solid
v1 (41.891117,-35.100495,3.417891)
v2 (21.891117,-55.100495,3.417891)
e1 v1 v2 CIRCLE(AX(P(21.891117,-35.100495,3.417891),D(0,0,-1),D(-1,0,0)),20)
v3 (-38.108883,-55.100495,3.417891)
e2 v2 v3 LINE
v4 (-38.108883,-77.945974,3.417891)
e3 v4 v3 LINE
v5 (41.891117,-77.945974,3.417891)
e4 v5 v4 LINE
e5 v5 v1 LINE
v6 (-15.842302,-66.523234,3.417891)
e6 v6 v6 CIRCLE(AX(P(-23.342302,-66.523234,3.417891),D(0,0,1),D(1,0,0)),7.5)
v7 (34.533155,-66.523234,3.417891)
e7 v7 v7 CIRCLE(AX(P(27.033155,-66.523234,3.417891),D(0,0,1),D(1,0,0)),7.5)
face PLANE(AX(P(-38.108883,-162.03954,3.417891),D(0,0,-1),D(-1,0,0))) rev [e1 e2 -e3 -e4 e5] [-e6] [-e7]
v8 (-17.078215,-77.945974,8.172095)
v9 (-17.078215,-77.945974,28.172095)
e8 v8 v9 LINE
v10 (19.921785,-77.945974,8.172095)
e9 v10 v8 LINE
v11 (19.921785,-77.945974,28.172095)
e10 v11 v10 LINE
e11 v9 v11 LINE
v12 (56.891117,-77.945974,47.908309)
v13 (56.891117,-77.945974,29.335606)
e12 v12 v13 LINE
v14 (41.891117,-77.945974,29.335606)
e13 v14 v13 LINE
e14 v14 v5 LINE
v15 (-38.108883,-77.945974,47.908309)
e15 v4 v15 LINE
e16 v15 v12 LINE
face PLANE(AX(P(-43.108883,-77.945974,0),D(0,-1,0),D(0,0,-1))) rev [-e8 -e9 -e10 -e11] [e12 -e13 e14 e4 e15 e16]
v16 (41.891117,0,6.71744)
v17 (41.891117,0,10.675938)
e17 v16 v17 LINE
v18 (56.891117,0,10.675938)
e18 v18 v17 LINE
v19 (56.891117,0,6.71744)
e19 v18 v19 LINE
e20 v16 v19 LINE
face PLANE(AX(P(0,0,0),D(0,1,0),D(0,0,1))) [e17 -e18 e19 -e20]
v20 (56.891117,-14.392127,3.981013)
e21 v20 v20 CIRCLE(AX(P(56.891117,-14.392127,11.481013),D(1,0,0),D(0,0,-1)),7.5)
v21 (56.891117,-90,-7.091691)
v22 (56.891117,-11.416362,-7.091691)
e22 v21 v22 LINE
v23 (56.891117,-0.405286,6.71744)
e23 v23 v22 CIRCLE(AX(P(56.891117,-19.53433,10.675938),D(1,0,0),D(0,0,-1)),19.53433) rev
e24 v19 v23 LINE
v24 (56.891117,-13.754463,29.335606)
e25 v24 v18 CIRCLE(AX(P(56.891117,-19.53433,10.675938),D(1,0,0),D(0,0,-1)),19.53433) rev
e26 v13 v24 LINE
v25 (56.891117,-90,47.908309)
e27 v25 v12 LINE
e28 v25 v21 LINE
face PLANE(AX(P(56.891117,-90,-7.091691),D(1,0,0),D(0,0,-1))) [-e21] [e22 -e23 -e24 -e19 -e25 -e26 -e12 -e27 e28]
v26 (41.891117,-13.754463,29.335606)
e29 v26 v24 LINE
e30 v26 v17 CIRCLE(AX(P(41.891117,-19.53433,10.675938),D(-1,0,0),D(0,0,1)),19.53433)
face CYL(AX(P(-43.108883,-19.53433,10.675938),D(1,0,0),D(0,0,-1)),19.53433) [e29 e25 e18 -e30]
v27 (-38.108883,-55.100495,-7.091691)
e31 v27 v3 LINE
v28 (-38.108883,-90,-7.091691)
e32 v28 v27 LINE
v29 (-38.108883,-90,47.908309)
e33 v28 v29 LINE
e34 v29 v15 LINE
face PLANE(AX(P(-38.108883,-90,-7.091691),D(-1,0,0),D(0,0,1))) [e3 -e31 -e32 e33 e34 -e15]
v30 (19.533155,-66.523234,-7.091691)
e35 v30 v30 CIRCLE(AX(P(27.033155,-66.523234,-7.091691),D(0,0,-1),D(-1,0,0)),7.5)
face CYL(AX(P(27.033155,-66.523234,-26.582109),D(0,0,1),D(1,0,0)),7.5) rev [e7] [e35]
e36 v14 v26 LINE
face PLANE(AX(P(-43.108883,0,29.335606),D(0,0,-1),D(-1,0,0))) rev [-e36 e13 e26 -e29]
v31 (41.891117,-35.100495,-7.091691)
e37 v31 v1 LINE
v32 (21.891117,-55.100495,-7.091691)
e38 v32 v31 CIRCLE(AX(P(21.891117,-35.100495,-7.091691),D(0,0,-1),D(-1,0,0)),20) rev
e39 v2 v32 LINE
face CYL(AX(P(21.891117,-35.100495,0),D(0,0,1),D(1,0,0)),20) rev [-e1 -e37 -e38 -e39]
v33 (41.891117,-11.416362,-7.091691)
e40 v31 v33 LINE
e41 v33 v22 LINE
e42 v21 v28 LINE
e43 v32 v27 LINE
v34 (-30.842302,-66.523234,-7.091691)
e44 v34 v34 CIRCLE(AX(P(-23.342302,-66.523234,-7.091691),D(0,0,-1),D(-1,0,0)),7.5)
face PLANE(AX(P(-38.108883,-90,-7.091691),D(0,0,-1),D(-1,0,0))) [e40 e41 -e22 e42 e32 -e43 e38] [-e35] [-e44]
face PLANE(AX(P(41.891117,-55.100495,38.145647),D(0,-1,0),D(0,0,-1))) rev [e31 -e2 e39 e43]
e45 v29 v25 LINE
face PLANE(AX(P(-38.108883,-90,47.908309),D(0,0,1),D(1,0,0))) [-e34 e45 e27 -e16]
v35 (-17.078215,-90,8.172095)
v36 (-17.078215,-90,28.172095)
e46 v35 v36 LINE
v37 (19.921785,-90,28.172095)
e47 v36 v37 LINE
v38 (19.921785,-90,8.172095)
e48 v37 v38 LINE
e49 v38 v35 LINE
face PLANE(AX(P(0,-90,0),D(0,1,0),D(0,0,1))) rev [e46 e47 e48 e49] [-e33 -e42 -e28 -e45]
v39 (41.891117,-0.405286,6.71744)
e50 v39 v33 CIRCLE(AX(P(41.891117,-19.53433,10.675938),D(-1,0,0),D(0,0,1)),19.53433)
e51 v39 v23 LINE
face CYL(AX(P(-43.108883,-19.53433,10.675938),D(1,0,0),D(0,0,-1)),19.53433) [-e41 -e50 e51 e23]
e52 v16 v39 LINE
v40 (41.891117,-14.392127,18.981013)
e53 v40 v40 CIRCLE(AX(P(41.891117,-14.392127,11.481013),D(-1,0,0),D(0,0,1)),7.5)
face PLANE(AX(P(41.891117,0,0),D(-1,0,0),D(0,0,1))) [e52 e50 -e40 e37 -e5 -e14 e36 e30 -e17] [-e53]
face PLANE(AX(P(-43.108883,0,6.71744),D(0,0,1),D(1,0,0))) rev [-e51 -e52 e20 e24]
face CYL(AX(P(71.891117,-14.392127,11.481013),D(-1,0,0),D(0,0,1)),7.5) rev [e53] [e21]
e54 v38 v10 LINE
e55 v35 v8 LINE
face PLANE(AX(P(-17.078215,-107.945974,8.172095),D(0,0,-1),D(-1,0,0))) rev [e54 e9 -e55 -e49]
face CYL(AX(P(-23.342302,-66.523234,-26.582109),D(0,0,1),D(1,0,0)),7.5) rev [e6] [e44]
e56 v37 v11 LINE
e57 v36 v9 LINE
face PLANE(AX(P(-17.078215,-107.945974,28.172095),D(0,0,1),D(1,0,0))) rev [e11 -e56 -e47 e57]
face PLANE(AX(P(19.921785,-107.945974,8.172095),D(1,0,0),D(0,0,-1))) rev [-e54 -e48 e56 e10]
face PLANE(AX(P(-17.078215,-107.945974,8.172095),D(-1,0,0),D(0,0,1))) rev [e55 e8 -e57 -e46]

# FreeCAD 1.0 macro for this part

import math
import FreeCAD as App
import Part
import Sketcher

V = App.Vector


def edges_at(feature, points):
    """Names of the edges that pass closest to the given points."""
    edges = feature.Shape.Edges
    near = lambda p: min(range(len(edges)), key=lambda i: edges[i].distToShape(Part.Vertex(*p))[0])
    return sorted({f"Edge{near(p) + 1}" for p in points})


def add_polygon(sketch, points):
    """Adds a closed chain of lines whose ends are joined by coincident constraints."""
    first, n = sketch.GeometryCount, len(points)
    for a, b in zip(points, points[1:] + points[:1]):
        sketch.addGeometry(Part.LineSegment(App.Vector(*a, 0), App.Vector(*b, 0)), False)
    for i in range(n):
        sketch.addConstraint(Sketcher.Constraint("Coincident", first + i, 2, first + (i + 1) % n, 1))

doc = App.newDocument("Part")
params = doc.addObject("Spreadsheet::Sheet", "Params")
for row, (alias, value) in enumerate([
    ("sketch1_width", "95 mm"),
    ("sketch1_height", "55 mm"),
    ("pad1_length", "90 mm"),
    ("pocket1_length", "100 mm"),
    ("pocket2_length", "80 mm"),
    ("sketch4_width", "80 mm"),
    ("pocket3_length", "22.845479 mm"),
    ("fillet_radius", "20 mm"),
    ("sketch5_diameter", "15 mm"),
    ("pocket4_length", "30 mm"),
    ("sketch6_width", "37 mm"),
    ("sketch6_height", "20 mm"),
    ("pocket5_length", "30 mm"),
    ("sketch7_diameter", "15 mm"),
    ("pocket6_length", "30 mm"),
], start=1):
    params.set(f"A{row}", alias)
    params.set(f"B{row}", "=" + value)
    params.setAlias(f"B{row}", alias)

body = doc.addObject("PartDesign::Body", "Body")

sketch1 = doc.addObject("Sketcher::SketchObject", "Sketch")
body.addObject(sketch1)
sketch1.AttachmentSupport = (doc.XZ_Plane, [""])
sketch1.MapMode = "FlatFace"
add_polygon(sketch1, [(-38, -7), (-38, 48), (57, 48), (57, -7)])
sketch1.addConstraint([
    Sketcher.Constraint("Vertical", 0),
    Sketcher.Constraint("Horizontal", 1),
    Sketcher.Constraint("Vertical", 2),
    Sketcher.Constraint("Horizontal", 3),
    Sketcher.Constraint("DistanceX", 1, 1, 1, 2, 95.0),
    Sketcher.Constraint("DistanceY", 0, 1, 0, 2, 55.0),
    Sketcher.Constraint("DistanceY", -1, 1, 0, 2, 47.908309),
    Sketcher.Constraint("DistanceX", 0, 2, -1, 1, 38.108883),
])
sketch1.setExpression("Constraints[8]", "Params.sketch1_width")
sketch1.setExpression("Constraints[9]", "Params.sketch1_height")
pad1 = doc.addObject("PartDesign::Pad", "Pad")
body.addObject(pad1)
pad1.Profile = sketch1
pad1.setExpression("Length", "Params.pad1_length")

sketch2 = doc.addObject("Sketcher::SketchObject", "Sketch001")
body.addObject(sketch2)
sketch2.AttachmentSupport = (doc.YZ_Plane, [""])
sketch2.MapMode = "FlatFace"
sketch2.AttachmentOffset = App.Placement(V(0, 0, 56.891117), App.Rotation())
sketch2.addGeometry([
    Part.ArcOfCircle(Part.Circle(V(-19.53, 10.68, 0), V(0, 0, 1), 19.53), math.radians(-65), math.radians(-12)),
    Part.LineSegment(V(-11.42, -7.09, 0), V(0, -7.09, 0)),
    Part.LineSegment(V(0, -7.09, 0), V(0, 6.72, 0)),
    Part.LineSegment(V(0, 6.72, 0), V(-0.41, 6.72, 0)),
    Part.LineSegment(V(-77.95, 47.91, 0), V(-77.95, 29.34, 0)),
    Part.LineSegment(V(-77.95, 29.34, 0), V(-13.75, 29.34, 0)),
    Part.ArcOfCircle(Part.Circle(V(-19.53, 10.68, 0), V(0, 0, 1), 19.53), math.radians(0), math.radians(73)),
    Part.LineSegment(V(0, 10.68, 0), V(0, 47.91, 0)),
    Part.LineSegment(V(0, 47.91, 0), V(-77.95, 47.91, 0)),
], False)
sketch2.addConstraint([
    Sketcher.Constraint("Coincident", 0, 1, 1, 1),
    Sketcher.Constraint("Coincident", 1, 2, 2, 1),
    Sketcher.Constraint("Coincident", 2, 2, 3, 1),
    Sketcher.Constraint("Coincident", 3, 2, 0, 2),
    Sketcher.Constraint("Coincident", 4, 2, 5, 1),
    Sketcher.Constraint("Coincident", 5, 2, 6, 2),
    Sketcher.Constraint("Tangent", 6, 1, 7, 1),
    Sketcher.Constraint("Coincident", 7, 2, 8, 1),
    Sketcher.Constraint("Coincident", 8, 2, 4, 1),
    Sketcher.Constraint("Horizontal", 1),
    Sketcher.Constraint("Vertical", 2),
    Sketcher.Constraint("Horizontal", 3),
    Sketcher.Constraint("Vertical", 4),
    Sketcher.Constraint("Horizontal", 5),
    Sketcher.Constraint("Vertical", 7),
    Sketcher.Constraint("Horizontal", 8),
    Sketcher.Constraint("Coincident", 6, 3, 0, 3),
    Sketcher.Constraint("Equal", 0, 6),
    Sketcher.Constraint("PointOnObject", 1, 2, -2),
    Sketcher.Constraint("PointOnObject", 6, 1, -2),
    Sketcher.Constraint("Radius", 0, 19.53433),
    Sketcher.Constraint("DistanceX", 5, 1, 5, 2, 64.19151),
    Sketcher.Constraint("DistanceY", 2, 1, 2, 2, 13.809131),
    Sketcher.Constraint("DistanceY", 7, 1, 7, 2, 37.232371),
    Sketcher.Constraint("DistanceY", 2, 2, 6, 3, 3.958498),
    Sketcher.Constraint("DistanceX", 5, 2, 0, 1, 2.338101),
    Sketcher.Constraint("DistanceY", -1, 1, 0, 3, 10.675938),
])
pocket1 = doc.addObject("PartDesign::Pocket", "Pocket")
body.addObject(pocket1)
pocket1.Profile = sketch2
pocket1.setExpression("Length", "Params.pocket1_length")

sketch3 = doc.addObject("Sketcher::SketchObject", "Sketch002")
body.addObject(sketch3)
sketch3.AttachmentSupport = (doc.YZ_Plane, [""])
sketch3.MapMode = "FlatFace"
sketch3.AttachmentOffset = App.Placement(V(0, 0, -38.108883), App.Rotation())
add_polygon(sketch3, [(19, -22), (-55, -22), (-55, 38), (19, 38)])
sketch3.addConstraint([
    Sketcher.Constraint("Horizontal", 0),
    Sketcher.Constraint("Vertical", 1),
    Sketcher.Constraint("Horizontal", 2),
    Sketcher.Constraint("Vertical", 3),
    Sketcher.Constraint("DistanceX", 0, 2, 0, 1, 73.853609),
    Sketcher.Constraint("DistanceY", 1, 1, 1, 2, 60.486878),
    Sketcher.Constraint("DistanceY", 0, 2, -1, 1, 22.341231),
    Sketcher.Constraint("DistanceX", 0, 2, -1, 1, 55.100495),
])
pocket2 = doc.addObject("PartDesign::Pocket", "Pocket001")
body.addObject(pocket2)
pocket2.Profile = sketch3
pocket2.setExpression("Length", "Params.pocket2_length")
pocket2.Reversed = True

sketch4 = doc.addObject("Sketcher::SketchObject", "Sketch003")
body.addObject(sketch4)
sketch4.AttachmentSupport = (doc.XZ_Plane, [""])
sketch4.MapMode = "FlatFace"
sketch4.AttachmentOffset = App.Placement(V(0, 0, 55.100495), App.Rotation())
add_polygon(sketch4, [(-38, 3), (-38, 29), (42, 29), (42, 3)])
sketch4.addConstraint([
    Sketcher.Constraint("Vertical", 0),
    Sketcher.Constraint("Horizontal", 1),
    Sketcher.Constraint("Vertical", 2),
    Sketcher.Constraint("Horizontal", 3),
    Sketcher.Constraint("DistanceX", 1, 1, 1, 2, 80.0),
    Sketcher.Constraint("DistanceY", 0, 1, 0, 2, 25.917714),
    Sketcher.Constraint("DistanceY", -1, 1, 2, 2, 3.417891),
    Sketcher.Constraint("DistanceX", 0, 2, -1, 1, 38.108883),
])
sketch4.setExpression("Constraints[8]", "Params.sketch4_width")
pocket3 = doc.addObject("PartDesign::Pocket", "Pocket002")
body.addObject(pocket3)
pocket3.Profile = sketch4
pocket3.setExpression("Length", "Params.pocket3_length")
pocket3.Reversed = True
doc.recompute()

fillet = doc.addObject("PartDesign::Fillet", "Fillet")
body.addObject(fillet)
fillet.Base = (pocket3, edges_at(pocket3, [(41.891, -55.1, -1.837)]))
fillet.setExpression("Radius", "Params.fillet_radius")

sketch5 = doc.addObject("Sketcher::SketchObject", "Sketch004")
body.addObject(sketch5)
sketch5.AttachmentSupport = (doc.XY_Plane, [""])
sketch5.MapMode = "FlatFace"
sketch5.AttachmentOffset = App.Placement(V(0, 0, 3.417891), App.Rotation())
sketch5.addGeometry([
    Part.Circle(V(-23, -67, 0), V(0, 0, 1), 8),
    Part.Circle(V(27, -67, 0), V(0, 0, 1), 8),
], False)
sketch5.addConstraint([
    Sketcher.Constraint("Equal", 0, 1),
    Sketcher.Constraint("Horizontal", 0, 3, 1, 3),
    Sketcher.Constraint("Diameter", 0, 15.0),
    Sketcher.Constraint("DistanceX", 0, 3, -1, 1, 23.342302),
    Sketcher.Constraint("DistanceY", 0, 3, -1, 1, 66.523234),
    Sketcher.Constraint("DistanceX", -1, 1, 1, 3, 27.033155),
])
sketch5.setExpression("Constraints[2]", "Params.sketch5_diameter")
pocket4 = doc.addObject("PartDesign::Pocket", "Pocket003")
body.addObject(pocket4)
pocket4.Profile = sketch5
pocket4.setExpression("Length", "Params.pocket4_length")

sketch6 = doc.addObject("Sketcher::SketchObject", "Sketch005")
body.addObject(sketch6)
sketch6.AttachmentSupport = (doc.XZ_Plane, [""])
sketch6.MapMode = "FlatFace"
sketch6.AttachmentOffset = App.Placement(V(0, 0, 77.945974), App.Rotation())
add_polygon(sketch6, [(-17, 8), (-17, 28), (20, 28), (20, 8)])
sketch6.addConstraint([
    Sketcher.Constraint("Vertical", 0),
    Sketcher.Constraint("Horizontal", 1),
    Sketcher.Constraint("Vertical", 2),
    Sketcher.Constraint("Horizontal", 3),
    Sketcher.Constraint("DistanceX", 1, 1, 1, 2, 37.0),
    Sketcher.Constraint("DistanceY", 0, 1, 0, 2, 20.0),
    Sketcher.Constraint("DistanceX", 0, 2, -1, 1, 17.078215),
    Sketcher.Constraint("DistanceY", -1, 1, 0, 2, 28.172095),
])
sketch6.setExpression("Constraints[8]", "Params.sketch6_width")
sketch6.setExpression("Constraints[9]", "Params.sketch6_height")
pocket5 = doc.addObject("PartDesign::Pocket", "Pocket004")
body.addObject(pocket5)
pocket5.Profile = sketch6
pocket5.setExpression("Length", "Params.pocket5_length")
pocket5.Reversed = True

sketch7 = doc.addObject("Sketcher::SketchObject", "Sketch006")
body.addObject(sketch7)
sketch7.AttachmentSupport = (doc.YZ_Plane, [""])
sketch7.MapMode = "FlatFace"
sketch7.AttachmentOffset = App.Placement(V(0, 0, 41.891117), App.Rotation())
sketch7.addGeometry(Part.Circle(V(-14, 11, 0), V(0, 0, 1), 8), False)
sketch7.addConstraint([
    Sketcher.Constraint("Diameter", 0, 15.0),
    Sketcher.Constraint("DistanceX", 0, 3, -1, 1, 14.392127),
    Sketcher.Constraint("DistanceY", -1, 1, 0, 3, 11.481013),
])
sketch7.setExpression("Constraints[0]", "Params.sketch7_diameter")
pocket6 = doc.addObject("PartDesign::Pocket", "Pocket005")
body.addObject(pocket6)
pocket6.Profile = sketch7
pocket6.setExpression("Length", "Params.pocket6_length")
pocket6.Reversed = True

doc.recompute()
